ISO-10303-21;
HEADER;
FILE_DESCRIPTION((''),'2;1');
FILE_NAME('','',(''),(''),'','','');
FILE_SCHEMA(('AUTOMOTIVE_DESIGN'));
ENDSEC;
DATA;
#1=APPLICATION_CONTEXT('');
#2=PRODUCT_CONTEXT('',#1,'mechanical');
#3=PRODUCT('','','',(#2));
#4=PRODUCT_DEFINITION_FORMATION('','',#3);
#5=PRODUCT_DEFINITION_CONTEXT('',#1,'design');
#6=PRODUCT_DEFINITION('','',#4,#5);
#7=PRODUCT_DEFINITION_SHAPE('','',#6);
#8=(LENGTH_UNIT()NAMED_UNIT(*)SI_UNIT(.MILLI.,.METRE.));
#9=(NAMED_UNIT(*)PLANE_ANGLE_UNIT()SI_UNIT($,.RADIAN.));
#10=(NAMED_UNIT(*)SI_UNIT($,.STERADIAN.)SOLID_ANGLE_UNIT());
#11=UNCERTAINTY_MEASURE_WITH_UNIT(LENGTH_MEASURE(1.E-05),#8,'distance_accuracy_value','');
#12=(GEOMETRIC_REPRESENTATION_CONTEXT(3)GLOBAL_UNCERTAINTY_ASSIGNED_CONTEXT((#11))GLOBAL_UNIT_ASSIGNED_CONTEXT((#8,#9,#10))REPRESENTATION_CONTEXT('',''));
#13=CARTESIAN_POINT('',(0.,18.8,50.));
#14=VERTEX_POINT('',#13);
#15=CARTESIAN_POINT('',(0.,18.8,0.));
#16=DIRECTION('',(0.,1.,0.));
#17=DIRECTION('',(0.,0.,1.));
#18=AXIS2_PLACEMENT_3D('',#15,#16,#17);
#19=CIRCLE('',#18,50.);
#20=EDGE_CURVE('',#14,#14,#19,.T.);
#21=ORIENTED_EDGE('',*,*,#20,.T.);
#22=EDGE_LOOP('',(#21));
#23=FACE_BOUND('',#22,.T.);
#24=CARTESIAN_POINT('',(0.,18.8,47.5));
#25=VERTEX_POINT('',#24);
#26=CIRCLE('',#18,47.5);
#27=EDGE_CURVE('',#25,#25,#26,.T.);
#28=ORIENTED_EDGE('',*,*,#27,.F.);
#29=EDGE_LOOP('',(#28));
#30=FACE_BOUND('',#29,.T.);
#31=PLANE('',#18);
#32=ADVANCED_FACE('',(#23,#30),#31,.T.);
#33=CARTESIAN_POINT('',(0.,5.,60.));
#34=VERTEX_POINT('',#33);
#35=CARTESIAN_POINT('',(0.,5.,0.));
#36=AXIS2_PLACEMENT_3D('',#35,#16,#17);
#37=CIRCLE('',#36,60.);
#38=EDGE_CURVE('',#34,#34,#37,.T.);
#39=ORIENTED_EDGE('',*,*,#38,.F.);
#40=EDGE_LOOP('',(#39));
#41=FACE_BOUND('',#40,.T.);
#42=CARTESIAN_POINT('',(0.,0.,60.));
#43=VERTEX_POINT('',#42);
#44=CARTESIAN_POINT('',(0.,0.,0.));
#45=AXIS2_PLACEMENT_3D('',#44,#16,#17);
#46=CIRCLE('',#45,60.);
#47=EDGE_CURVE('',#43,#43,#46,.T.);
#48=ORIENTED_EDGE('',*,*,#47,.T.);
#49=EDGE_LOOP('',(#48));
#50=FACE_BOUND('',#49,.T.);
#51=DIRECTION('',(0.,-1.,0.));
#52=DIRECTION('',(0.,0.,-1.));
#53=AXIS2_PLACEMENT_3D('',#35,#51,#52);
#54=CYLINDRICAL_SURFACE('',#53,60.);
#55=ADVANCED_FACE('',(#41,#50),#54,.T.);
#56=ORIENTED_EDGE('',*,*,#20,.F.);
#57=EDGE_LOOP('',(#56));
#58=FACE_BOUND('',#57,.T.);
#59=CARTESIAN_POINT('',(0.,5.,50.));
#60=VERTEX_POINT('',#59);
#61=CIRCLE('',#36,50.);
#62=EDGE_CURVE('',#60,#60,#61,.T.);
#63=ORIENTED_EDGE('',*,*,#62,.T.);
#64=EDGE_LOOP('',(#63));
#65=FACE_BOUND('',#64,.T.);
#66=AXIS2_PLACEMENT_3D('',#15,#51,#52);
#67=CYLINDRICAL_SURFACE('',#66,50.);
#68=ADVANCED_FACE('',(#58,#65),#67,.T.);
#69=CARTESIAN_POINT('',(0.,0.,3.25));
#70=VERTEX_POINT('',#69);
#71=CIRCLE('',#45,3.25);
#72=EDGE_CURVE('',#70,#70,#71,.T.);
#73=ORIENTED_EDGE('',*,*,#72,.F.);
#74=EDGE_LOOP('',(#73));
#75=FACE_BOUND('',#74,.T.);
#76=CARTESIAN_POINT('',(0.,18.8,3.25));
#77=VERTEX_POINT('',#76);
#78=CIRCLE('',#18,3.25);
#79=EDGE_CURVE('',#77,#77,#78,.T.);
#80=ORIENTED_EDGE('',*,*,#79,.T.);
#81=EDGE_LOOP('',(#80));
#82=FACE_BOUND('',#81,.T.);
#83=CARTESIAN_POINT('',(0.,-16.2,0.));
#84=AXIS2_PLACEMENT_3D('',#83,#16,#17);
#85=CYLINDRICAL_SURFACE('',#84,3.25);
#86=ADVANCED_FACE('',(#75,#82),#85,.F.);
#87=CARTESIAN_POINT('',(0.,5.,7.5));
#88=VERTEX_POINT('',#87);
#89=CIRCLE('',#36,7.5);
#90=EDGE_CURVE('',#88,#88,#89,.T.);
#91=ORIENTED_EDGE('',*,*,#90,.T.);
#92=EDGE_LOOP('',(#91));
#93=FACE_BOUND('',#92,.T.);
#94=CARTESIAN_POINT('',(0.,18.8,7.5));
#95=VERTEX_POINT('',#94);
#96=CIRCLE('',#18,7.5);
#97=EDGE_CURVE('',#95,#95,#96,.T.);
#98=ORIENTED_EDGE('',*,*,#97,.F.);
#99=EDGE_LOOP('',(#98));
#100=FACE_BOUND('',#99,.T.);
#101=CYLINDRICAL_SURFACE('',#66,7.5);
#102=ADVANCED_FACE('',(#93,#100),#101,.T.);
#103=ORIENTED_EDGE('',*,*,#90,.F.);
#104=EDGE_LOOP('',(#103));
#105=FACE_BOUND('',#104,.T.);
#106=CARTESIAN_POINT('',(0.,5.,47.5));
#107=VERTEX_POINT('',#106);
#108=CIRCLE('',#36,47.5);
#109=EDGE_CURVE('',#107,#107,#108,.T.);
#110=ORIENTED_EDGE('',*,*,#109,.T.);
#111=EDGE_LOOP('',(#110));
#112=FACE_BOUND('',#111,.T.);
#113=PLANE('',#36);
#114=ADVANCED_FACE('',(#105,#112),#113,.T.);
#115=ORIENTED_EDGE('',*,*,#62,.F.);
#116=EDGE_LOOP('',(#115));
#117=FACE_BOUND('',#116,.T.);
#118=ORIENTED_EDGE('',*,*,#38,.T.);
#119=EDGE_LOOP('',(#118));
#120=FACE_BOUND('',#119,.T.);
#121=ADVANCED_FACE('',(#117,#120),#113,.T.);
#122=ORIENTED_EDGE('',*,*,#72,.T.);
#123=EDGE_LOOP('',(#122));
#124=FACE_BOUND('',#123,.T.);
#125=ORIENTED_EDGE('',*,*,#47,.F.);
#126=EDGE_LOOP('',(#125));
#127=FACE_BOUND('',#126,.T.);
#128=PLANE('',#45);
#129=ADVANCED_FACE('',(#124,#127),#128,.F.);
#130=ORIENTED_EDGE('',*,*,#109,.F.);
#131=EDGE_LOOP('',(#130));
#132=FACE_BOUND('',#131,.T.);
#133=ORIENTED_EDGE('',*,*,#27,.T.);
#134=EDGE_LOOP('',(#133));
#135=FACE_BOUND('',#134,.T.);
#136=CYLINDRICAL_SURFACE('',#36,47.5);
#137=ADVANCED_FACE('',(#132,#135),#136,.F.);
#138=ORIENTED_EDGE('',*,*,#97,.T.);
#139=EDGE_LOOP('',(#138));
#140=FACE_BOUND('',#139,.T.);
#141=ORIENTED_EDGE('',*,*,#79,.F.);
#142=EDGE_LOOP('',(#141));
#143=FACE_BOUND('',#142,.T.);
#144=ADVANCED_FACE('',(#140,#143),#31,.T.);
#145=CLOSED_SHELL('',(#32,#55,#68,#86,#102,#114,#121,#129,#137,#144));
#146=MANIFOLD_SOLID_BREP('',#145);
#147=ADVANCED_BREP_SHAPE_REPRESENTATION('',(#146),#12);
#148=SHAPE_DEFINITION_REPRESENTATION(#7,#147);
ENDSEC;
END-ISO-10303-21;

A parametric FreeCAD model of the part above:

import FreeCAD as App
import Part
import Sketcher
Q = App.Units.Quantity

doc = App.newDocument("Part")
body = doc.addObject("PartDesign::Body", "Body")

# Sketch on XZ plane
sketch1 = body.newObject("Sketcher::SketchObject", "Sketch")
sketch1.AttachmentSupport = (doc.getObject("XZ_Plane"), [""])
sketch1.MapMode = "FlatFace"
sketch1.addGeometry(Part.Circle(App.Vector(0, 0, 0), App.Vector(0, 0, 1), 60), False)
sketch1.addConstraint(Sketcher.Constraint("Coincident", 0, 3, -1, 1))
sketch1.addConstraint(Sketcher.Constraint("Diameter", 0, Q("120 mm")))
pad1 = body.newObject("PartDesign::Pad", "Pad")
pad1.Profile = sketch1
pad1.Length = 5
pad1.Reversed = True

# Sketch on XZ plane
sketch2 = body.newObject("Sketcher::SketchObject", "Sketch001")
sketch2.AttachmentSupport = (doc.getObject("XZ_Plane"), [""])
sketch2.MapMode = "FlatFace"
sketch2.AttachmentOffset = App.Placement(App.Vector(0, 0, -5), App.Rotation())
sketch2.addGeometry(Part.Circle(App.Vector(0, 0, 0), App.Vector(0, 0, 1), 50), False)
sketch2.addConstraint(Sketcher.Constraint("Coincident", 0, 3, -1, 1))
sketch2.addConstraint(Sketcher.Constraint("Diameter", 0, Q("100 mm")))
pad2 = body.newObject("PartDesign::Pad", "Pad001")
pad2.Profile = sketch2
pad2.Length = 13.8
pad2.Reversed = True

# Sketch on XZ plane
sketch3 = body.newObject("Sketcher::SketchObject", "Sketch002")
sketch3.AttachmentSupport = (doc.getObject("XZ_Plane"), [""])
sketch3.MapMode = "FlatFace"
sketch3.AttachmentOffset = App.Placement(App.Vector(0, 0, -18.8), App.Rotation())
sketch3.addGeometry(Part.Circle(App.Vector(0, 0, 0), App.Vector(0, 0, 1), 48), False)
sketch3.addConstraint(Sketcher.Constraint("Coincident", 0, 3, -1, 1))
sketch3.addConstraint(Sketcher.Constraint("Diameter", 0, Q("95 mm")))
pocket1 = body.newObject("PartDesign::Pocket", "Pocket")
pocket1.Profile = sketch3
pocket1.Length = 13.8
pocket1.Reversed = True

# Sketch on XZ plane
sketch4 = body.newObject("Sketcher::SketchObject", "Sketch003")
sketch4.AttachmentSupport = (doc.getObject("XZ_Plane"), [""])
sketch4.MapMode = "FlatFace"
sketch4.AttachmentOffset = App.Placement(App.Vector(0, 0, -5), App.Rotation())
sketch4.addGeometry(Part.Circle(App.Vector(0, 0, 0), App.Vector(0, 0, 1), 8), False)
sketch4.addConstraint(Sketcher.Constraint("Coincident", 0, 3, -1, 1))
sketch4.addConstraint(Sketcher.Constraint("Diameter", 0, Q("15 mm")))
pad3 = body.newObject("PartDesign::Pad", "Pad002")
pad3.Profile = sketch4
pad3.Length = 13.8
pad3.Reversed = True

# Sketch on XZ plane
sketch5 = body.newObject("Sketcher::SketchObject", "Sketch004")
sketch5.AttachmentSupport = (doc.getObject("XZ_Plane"), [""])
sketch5.MapMode = "FlatFace"
sketch5.AttachmentOffset = App.Placement(App.Vector(0, 0, -18.8), App.Rotation())
sketch5.addGeometry(Part.Circle(App.Vector(0, 0, 0), App.Vector(0, 0, 1), 3.2), False)
sketch5.addConstraint(Sketcher.Constraint("Coincident", 0, 3, -1, 1))
sketch5.addConstraint(Sketcher.Constraint("Diameter", 0, Q("6.5 mm")))
pocket2 = body.newObject("PartDesign::Pocket", "Pocket001")
pocket2.Profile = sketch5
pocket2.Length = 35
pocket2.Reversed = True

doc.recompute()
